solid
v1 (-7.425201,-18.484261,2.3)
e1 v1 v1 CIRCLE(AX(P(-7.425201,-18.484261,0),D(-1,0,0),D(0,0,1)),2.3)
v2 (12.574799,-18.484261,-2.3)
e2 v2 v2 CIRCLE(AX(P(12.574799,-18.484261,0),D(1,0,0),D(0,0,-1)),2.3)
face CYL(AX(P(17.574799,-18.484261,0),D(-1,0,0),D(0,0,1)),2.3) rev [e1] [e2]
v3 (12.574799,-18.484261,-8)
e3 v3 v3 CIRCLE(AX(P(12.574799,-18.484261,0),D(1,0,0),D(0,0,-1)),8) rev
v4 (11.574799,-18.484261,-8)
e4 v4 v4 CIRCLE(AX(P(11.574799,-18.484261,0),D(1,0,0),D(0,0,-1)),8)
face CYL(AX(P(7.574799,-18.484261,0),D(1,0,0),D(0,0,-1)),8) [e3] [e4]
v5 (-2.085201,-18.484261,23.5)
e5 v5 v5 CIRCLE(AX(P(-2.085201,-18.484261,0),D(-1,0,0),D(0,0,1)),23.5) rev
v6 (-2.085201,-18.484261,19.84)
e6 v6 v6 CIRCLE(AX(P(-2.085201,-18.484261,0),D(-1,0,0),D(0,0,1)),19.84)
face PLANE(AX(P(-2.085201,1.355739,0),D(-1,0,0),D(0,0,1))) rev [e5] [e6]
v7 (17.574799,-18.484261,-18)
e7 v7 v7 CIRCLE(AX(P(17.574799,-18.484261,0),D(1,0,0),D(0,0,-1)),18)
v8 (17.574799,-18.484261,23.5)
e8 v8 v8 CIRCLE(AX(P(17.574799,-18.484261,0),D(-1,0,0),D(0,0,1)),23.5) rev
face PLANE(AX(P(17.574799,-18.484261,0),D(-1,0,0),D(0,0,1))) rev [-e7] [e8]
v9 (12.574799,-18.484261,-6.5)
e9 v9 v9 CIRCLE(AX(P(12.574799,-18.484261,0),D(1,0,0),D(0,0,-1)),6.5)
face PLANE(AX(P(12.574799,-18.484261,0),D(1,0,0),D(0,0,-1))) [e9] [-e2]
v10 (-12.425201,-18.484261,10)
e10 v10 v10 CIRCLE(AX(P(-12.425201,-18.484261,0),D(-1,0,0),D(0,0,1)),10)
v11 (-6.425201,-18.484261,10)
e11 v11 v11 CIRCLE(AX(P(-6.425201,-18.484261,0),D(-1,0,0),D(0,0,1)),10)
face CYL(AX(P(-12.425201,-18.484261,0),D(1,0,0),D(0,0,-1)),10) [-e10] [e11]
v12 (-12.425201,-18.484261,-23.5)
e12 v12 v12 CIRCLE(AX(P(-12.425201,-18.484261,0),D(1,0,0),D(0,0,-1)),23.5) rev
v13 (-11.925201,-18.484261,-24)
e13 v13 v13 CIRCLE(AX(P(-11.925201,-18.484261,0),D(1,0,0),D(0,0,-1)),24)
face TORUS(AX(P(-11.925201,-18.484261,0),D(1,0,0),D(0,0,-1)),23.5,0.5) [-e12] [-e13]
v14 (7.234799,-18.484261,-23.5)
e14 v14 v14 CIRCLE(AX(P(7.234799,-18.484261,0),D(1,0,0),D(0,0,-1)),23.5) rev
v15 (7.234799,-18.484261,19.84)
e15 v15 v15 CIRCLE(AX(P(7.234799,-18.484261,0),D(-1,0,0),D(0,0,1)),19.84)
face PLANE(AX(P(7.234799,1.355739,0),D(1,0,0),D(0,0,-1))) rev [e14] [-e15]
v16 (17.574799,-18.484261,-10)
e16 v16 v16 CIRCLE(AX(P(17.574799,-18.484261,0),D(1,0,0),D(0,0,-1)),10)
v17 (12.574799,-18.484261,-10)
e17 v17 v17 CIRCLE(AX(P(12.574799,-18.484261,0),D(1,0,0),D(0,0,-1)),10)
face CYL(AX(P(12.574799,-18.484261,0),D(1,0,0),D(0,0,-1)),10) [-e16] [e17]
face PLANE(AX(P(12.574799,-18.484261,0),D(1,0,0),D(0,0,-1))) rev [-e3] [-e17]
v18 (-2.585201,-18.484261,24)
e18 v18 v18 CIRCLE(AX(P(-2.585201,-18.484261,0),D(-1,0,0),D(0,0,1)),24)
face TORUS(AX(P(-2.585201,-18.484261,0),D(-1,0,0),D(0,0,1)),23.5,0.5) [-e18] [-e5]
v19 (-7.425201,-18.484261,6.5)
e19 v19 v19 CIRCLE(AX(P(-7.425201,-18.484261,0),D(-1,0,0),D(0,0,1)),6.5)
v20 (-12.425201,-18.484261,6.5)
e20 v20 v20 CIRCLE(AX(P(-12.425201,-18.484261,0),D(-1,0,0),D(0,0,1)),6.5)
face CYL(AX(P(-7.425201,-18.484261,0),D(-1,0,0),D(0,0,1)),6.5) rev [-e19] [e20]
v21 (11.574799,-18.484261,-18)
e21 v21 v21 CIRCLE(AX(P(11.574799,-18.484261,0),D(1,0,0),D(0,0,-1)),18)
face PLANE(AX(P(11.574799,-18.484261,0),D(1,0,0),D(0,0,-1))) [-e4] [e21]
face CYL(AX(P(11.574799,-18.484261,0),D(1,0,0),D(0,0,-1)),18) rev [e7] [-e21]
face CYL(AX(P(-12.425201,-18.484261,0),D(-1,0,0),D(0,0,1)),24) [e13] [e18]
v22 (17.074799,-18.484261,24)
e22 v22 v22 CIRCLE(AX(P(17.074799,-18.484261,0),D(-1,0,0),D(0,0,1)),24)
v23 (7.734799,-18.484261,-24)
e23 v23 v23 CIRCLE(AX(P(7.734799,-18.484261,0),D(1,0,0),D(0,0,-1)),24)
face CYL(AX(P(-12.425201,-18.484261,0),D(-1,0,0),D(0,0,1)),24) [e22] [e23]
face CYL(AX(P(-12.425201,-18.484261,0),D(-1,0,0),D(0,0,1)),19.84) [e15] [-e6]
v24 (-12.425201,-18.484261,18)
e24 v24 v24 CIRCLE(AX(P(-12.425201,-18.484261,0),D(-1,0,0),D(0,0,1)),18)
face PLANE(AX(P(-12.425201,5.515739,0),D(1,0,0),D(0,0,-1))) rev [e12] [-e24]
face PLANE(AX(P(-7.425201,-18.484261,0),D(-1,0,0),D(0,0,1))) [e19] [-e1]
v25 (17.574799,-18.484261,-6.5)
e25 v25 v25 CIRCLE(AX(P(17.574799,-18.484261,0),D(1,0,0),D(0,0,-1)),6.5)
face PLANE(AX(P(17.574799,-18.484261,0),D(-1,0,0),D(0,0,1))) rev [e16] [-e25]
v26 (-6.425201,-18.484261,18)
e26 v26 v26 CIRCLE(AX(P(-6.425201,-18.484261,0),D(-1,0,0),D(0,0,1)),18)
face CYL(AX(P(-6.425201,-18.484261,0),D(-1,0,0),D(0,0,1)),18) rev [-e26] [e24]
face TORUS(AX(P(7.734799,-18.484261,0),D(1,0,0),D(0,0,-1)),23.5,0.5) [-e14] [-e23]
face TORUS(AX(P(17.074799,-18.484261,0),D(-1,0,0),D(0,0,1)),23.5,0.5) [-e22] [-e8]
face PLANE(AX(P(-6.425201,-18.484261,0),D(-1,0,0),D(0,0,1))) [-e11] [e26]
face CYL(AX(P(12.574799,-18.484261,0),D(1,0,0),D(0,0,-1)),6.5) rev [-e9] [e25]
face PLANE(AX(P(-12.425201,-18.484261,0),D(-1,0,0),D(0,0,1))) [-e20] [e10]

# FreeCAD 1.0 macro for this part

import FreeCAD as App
import Part
import Sketcher
Q = App.Units.Quantity


def edges_at(feature, points):
    """Names of the edges that pass closest to the given points."""
    edges = feature.Shape.Edges
    near = lambda p: min(range(len(edges)), key=lambda i: edges[i].distToShape(Part.Vertex(*p))[0])
    return sorted({f"Edge{near(p) + 1}" for p in points})

doc = App.newDocument("Part")
body = doc.addObject("PartDesign::Body", "Body")

sketch1 = doc.addObject("Sketcher::SketchObject", "Sketch")
body.addObject(sketch1)
sketch1.AttachmentSupport = (doc.XY_Plane, [""])
sketch1.MapMode = "FlatFace"
sketch1.addGeometry(Part.LineSegment(App.Vector(7.2, 1.4, 0), App.Vector(-2.1, 1.4, 0)), False)
sketch1.addGeometry(Part.LineSegment(App.Vector(-2.1, 1.4, 0), App.Vector(-2.1, 5.5, 0)), False)
sketch1.addGeometry(Part.LineSegment(App.Vector(-2.1, 5.5, 0), App.Vector(-12.4, 5.5, 0)), False)
sketch1.addGeometry(Part.LineSegment(App.Vector(-12.4, 5.5, 0), App.Vector(-12.4, -18.5, 0)), False)
sketch1.addGeometry(Part.LineSegment(App.Vector(-12.4, -18.5, 0), App.Vector(17.6, -18.5, 0)), False)
sketch1.addGeometry(Part.LineSegment(App.Vector(17.6, -18.5, 0), App.Vector(17.6, 5.5, 0)), False)
sketch1.addGeometry(Part.LineSegment(App.Vector(17.6, 5.5, 0), App.Vector(7.2, 5.5, 0)), False)
sketch1.addGeometry(Part.LineSegment(App.Vector(7.2, 5.5, 0), App.Vector(7.2, 1.4, 0)), False)
sketch1.addGeometry(Part.LineSegment(App.Vector(-12.4, -18.5, 0), App.Vector(17.6, -18.5, 0)), True)
sketch1.addConstraint(Sketcher.Constraint("Coincident", 0, 2, 1, 1))
sketch1.addConstraint(Sketcher.Constraint("Coincident", 1, 2, 2, 1))
sketch1.addConstraint(Sketcher.Constraint("Coincident", 2, 2, 3, 1))
sketch1.addConstraint(Sketcher.Constraint("Coincident", 3, 2, 4, 1))
sketch1.addConstraint(Sketcher.Constraint("Coincident", 4, 2, 5, 1))
sketch1.addConstraint(Sketcher.Constraint("Coincident", 5, 2, 6, 1))
sketch1.addConstraint(Sketcher.Constraint("Coincident", 6, 2, 7, 1))
sketch1.addConstraint(Sketcher.Constraint("Coincident", 7, 2, 0, 1))
sketch1.addConstraint(Sketcher.Constraint("Horizontal", 0))
sketch1.addConstraint(Sketcher.Constraint("Vertical", 1))
sketch1.addConstraint(Sketcher.Constraint("Horizontal", 2))
sketch1.addConstraint(Sketcher.Constraint("Vertical", 3))
sketch1.addConstraint(Sketcher.Constraint("Horizontal", 4))
sketch1.addConstraint(Sketcher.Constraint("Vertical", 5))
sketch1.addConstraint(Sketcher.Constraint("Horizontal", 6))
sketch1.addConstraint(Sketcher.Constraint("Vertical", 7))
sketch1.addConstraint(Sketcher.Constraint("Horizontal", 8))
sketch1.addConstraint(Sketcher.Constraint("Coincident", 8, 1, 3, 2))
sketch1.addConstraint(Sketcher.Constraint("Horizontal", 2, 2, 5, 2))
sketch1.addConstraint(Sketcher.Constraint("Vertical", 5, 2, 8, 2))
sketch1.addConstraint(Sketcher.Constraint("Equal", 2, 6))
sketch1.addConstraint(Sketcher.Constraint("DistanceX", 4, 1, 4, 2, Q("30 mm")))
sketch1.addConstraint(Sketcher.Constraint("DistanceY", 3, 2, 3, 1, Q("24 mm")))
sketch1.addConstraint(Sketcher.Constraint("DistanceX", 0, 2, 0, 1, Q("9.32 mm")))
sketch1.addConstraint(Sketcher.Constraint("DistanceY", 1, 1, 1, 2, Q("4.16 mm")))
sketch1.addConstraint(Sketcher.Constraint("DistanceX", 0, 2, -1, 1, Q("2.085201 mm")))
sketch1.addConstraint(Sketcher.Constraint("DistanceY", -1, 1, 0, 2, Q("1.355739 mm")))
revolution = doc.addObject("PartDesign::Revolution", "Revolution")
body.addObject(revolution)
revolution.Profile = sketch1
revolution.ReferenceAxis = (sketch1, ["Axis0"])
revolution.Angle = 360

sketch2 = doc.addObject("Sketcher::SketchObject", "Sketch001")
body.addObject(sketch2)
sketch2.AttachmentSupport = (doc.YZ_Plane, [""])
sketch2.MapMode = "FlatFace"
sketch2.AttachmentOffset = App.Placement(App.Vector(0, 0, 17.574799), App.Rotation())
sketch2.addGeometry(Part.Circle(App.Vector(-18.5, 0, 0), App.Vector(0, 0, 1), 2), False)
sketch2.addConstraint(Sketcher.Constraint("PointOnObject", 0, 3, -1))
sketch2.addConstraint(Sketcher.Constraint("Diameter", 0, Q("4 mm")))
sketch2.addConstraint(Sketcher.Constraint("DistanceX", 0, 3, -1, 1, Q("18.484261 mm")))
pocket1 = doc.addObject("PartDesign::Pocket", "Pocket")
body.addObject(pocket1)
pocket1.Profile = sketch2
pocket1.Type = "ThroughAll"
doc.recompute()

fillet = doc.addObject("PartDesign::Fillet", "Fillet")
body.addObject(fillet)
fillet.Base = (pocket1, edges_at(pocket1, [
    (-2.085, -18.484, -24),
    (7.235, -18.484, -24),
    (17.575, -18.484, -24),
    (-12.425, -18.484, -24),
]))
fillet.Radius = 0.5

sketch3 = doc.addObject("Sketcher::SketchObject", "Sketch002")
body.addObject(sketch3)
sketch3.AttachmentSupport = (doc.YZ_Plane, [""])
sketch3.MapMode = "FlatFace"
sketch3.AttachmentOffset = App.Placement(App.Vector(0, 0, 17.574799), App.Rotation())
sketch3.addGeometry(Part.Circle(App.Vector(-18, 0, 0), App.Vector(0, 0, 1), 18), False)
sketch3.addGeometry(Part.Circle(App.Vector(-18, 0, 0), App.Vector(0, 0, 1), 6), False)
sketch3.addConstraint(Sketcher.Constraint("Coincident", 1, 3, 0, 3))
sketch3.addConstraint(Sketcher.Constraint("PointOnObject", 0, 3, -1))
sketch3.addConstraint(Sketcher.Constraint("Diameter", 0, Q("36 mm")))
sketch3.addConstraint(Sketcher.Constraint("Diameter", 1, Q("12 mm")))
sketch3.addConstraint(Sketcher.Constraint("DistanceX", 0, 3, -1, 1, Q("18.484261 mm")))
pocket2 = doc.addObject("PartDesign::Pocket", "Pocket001")
body.addObject(pocket2)
pocket2.Profile = sketch3
pocket2.Length = 6

sketch4 = doc.addObject("Sketcher::SketchObject", "Sketch003")
body.addObject(sketch4)
sketch4.AttachmentSupport = (doc.YZ_Plane, [""])
sketch4.MapMode = "FlatFace"
sketch4.AttachmentOffset = App.Placement(App.Vector(0, 0, -6.425201), App.Rotation())
sketch4.addGeometry(Part.Circle(App.Vector(-18, 0, 0), App.Vector(0, 0, 1), 18), False)
sketch4.addConstraint(Sketcher.Constraint("PointOnObject", 0, 3, -1))
sketch4.addConstraint(Sketcher.Constraint("Diameter", 0, Q("36 mm")))
sketch4.addConstraint(Sketcher.Constraint("DistanceX", 0, 3, -1, 1, Q("18.484261 mm")))
pocket3 = doc.addObject("PartDesign::Pocket", "Pocket002")
body.addObject(pocket3)
pocket3.Profile = sketch4
pocket3.Length = 6

sketch5 = doc.addObject("Sketcher::SketchObject", "Sketch004")
body.addObject(sketch5)
sketch5.AttachmentSupport = (doc.YZ_Plane, [""])
sketch5.MapMode = "FlatFace"
sketch5.AttachmentOffset = App.Placement(App.Vector(0, 0, -6.425201), App.Rotation())
sketch5.addGeometry(Part.Circle(App.Vector(-18, 0, 0), App.Vector(0, 0, 1), 10), False)
sketch5.addConstraint(Sketcher.Constraint("PointOnObject", 0, 3, -1))
sketch5.addConstraint(Sketcher.Constraint("Diameter", 0, Q("20 mm")))
sketch5.addConstraint(Sketcher.Constraint("DistanceX", 0, 3, -1, 1, Q("18.484261 mm")))
pad1 = doc.addObject("PartDesign::Pad", "Pad")
body.addObject(pad1)
pad1.Profile = sketch5
pad1.Length = 6
pad1.Reversed = True

sketch6 = doc.addObject("Sketcher::SketchObject", "Sketch005")
body.addObject(sketch6)
sketch6.AttachmentSupport = (doc.YZ_Plane, [""])
sketch6.MapMode = "FlatFace"
sketch6.AttachmentOffset = App.Placement(App.Vector(0, 0, 17.574799), App.Rotation())
sketch6.addGeometry(Part.Circle(App.Vector(-18, 0, 0), App.Vector(0, 0, 1), 8), False)
sketch6.addConstraint(Sketcher.Constraint("PointOnObject", 0, 3, -1))
sketch6.addConstraint(Sketcher.Constraint("Diameter", 0, Q("16 mm")))
sketch6.addConstraint(Sketcher.Constraint("DistanceX", 0, 3, -1, 1, Q("18.484261 mm")))
pad2 = doc.addObject("PartDesign::Pad", "Pad001")
body.addObject(pad2)
pad2.Profile = sketch6
pad2.Length = 10
pad2.Reversed = True

sketch7 = doc.addObject("Sketcher::SketchObject", "Sketch006")
body.addObject(sketch7)
sketch7.AttachmentSupport = (doc.YZ_Plane, [""])
sketch7.MapMode = "FlatFace"
sketch7.AttachmentOffset = App.Placement(App.Vector(0, 0, -12.425201), App.Rotation())
sketch7.addGeometry(Part.Circle(App.Vector(-18, 0, 0), App.Vector(0, 0, 1), 6), False)
sketch7.addConstraint(Sketcher.Constraint("PointOnObject", 0, 3, -1))
sketch7.addConstraint(Sketcher.Constraint("Diameter", 0, Q("13 mm")))
sketch7.addConstraint(Sketcher.Constraint("DistanceX", 0, 3, -1, 1, Q("18.484261 mm")))
pocket4 = doc.addObject("PartDesign::Pocket", "Pocket003")
body.addObject(pocket4)
pocket4.Profile = sketch7
pocket4.Length = 5
pocket4.Reversed = True

sketch8 = doc.addObject("Sketcher::SketchObject", "Sketch007")
body.addObject(sketch8)
sketch8.AttachmentSupport = (doc.YZ_Plane, [""])
sketch8.MapMode = "FlatFace"
sketch8.AttachmentOffset = App.Placement(App.Vector(0, 0, 17.574799), App.Rotation())
sketch8.addGeometry(Part.Circle(App.Vector(-18, 0, 0), App.Vector(0, 0, 1), 10), False)
sketch8.addConstraint(Sketcher.Constraint("PointOnObject", 0, 3, -1))
sketch8.addConstraint(Sketcher.Constraint("Diameter", 0, Q("20 mm")))
sketch8.addConstraint(Sketcher.Constraint("DistanceX", 0, 3, -1, 1, Q("18.484261 mm")))
pad3 = doc.addObject("PartDesign::Pad", "Pad002")
body.addObject(pad3)
pad3.Profile = sketch8
pad3.Length = 5
pad3.Reversed = True

sketch9 = doc.addObject("Sketcher::SketchObject", "Sketch008")
body.addObject(sketch9)
sketch9.AttachmentSupport = (doc.YZ_Plane, [""])
sketch9.MapMode = "FlatFace"
sketch9.AttachmentOffset = App.Placement(App.Vector(0, 0, 12.574799), App.Rotation())
sketch9.addGeometry(Part.Circle(App.Vector(-18, 0, 0), App.Vector(0, 0, 1), 6), False)
sketch9.addConstraint(Sketcher.Constraint("PointOnObject", 0, 3, -1))
sketch9.addConstraint(Sketcher.Constraint("Diameter", 0, Q("13 mm")))
sketch9.addConstraint(Sketcher.Constraint("DistanceX", 0, 3, -1, 1, Q("18.484261 mm")))
pocket5 = doc.addObject("PartDesign::Pocket", "Pocket004")
body.addObject(pocket5)
pocket5.Profile = sketch9
pocket5.Length = 5
pocket5.Reversed = True

sketch10 = doc.addObject("Sketcher::SketchObject", "Sketch009")
body.addObject(sketch10)
sketch10.AttachmentSupport = (doc.YZ_Plane, [""])
sketch10.MapMode = "FlatFace"
sketch10.AttachmentOffset = App.Placement(App.Vector(0, 0, -12.425201), App.Rotation())
sketch10.addGeometry(Part.Circle(App.Vector(-18.5, 0, 0), App.Vector(0, 0, 1), 2.3), False)
sketch10.addConstraint(Sketcher.Constraint("PointOnObject", 0, 3, -1))
sketch10.addConstraint(Sketcher.Constraint("Diameter", 0, Q("4.6 mm")))
sketch10.addConstraint(Sketcher.Constraint("DistanceX", 0, 3, -1, 1, Q("18.484261 mm")))
pocket6 = doc.addObject("PartDesign::Pocket", "Pocket005")
body.addObject(pocket6)
pocket6.Profile = sketch10
pocket6.Type = "ThroughAll"
pocket6.Reversed = True

doc.recompute()
